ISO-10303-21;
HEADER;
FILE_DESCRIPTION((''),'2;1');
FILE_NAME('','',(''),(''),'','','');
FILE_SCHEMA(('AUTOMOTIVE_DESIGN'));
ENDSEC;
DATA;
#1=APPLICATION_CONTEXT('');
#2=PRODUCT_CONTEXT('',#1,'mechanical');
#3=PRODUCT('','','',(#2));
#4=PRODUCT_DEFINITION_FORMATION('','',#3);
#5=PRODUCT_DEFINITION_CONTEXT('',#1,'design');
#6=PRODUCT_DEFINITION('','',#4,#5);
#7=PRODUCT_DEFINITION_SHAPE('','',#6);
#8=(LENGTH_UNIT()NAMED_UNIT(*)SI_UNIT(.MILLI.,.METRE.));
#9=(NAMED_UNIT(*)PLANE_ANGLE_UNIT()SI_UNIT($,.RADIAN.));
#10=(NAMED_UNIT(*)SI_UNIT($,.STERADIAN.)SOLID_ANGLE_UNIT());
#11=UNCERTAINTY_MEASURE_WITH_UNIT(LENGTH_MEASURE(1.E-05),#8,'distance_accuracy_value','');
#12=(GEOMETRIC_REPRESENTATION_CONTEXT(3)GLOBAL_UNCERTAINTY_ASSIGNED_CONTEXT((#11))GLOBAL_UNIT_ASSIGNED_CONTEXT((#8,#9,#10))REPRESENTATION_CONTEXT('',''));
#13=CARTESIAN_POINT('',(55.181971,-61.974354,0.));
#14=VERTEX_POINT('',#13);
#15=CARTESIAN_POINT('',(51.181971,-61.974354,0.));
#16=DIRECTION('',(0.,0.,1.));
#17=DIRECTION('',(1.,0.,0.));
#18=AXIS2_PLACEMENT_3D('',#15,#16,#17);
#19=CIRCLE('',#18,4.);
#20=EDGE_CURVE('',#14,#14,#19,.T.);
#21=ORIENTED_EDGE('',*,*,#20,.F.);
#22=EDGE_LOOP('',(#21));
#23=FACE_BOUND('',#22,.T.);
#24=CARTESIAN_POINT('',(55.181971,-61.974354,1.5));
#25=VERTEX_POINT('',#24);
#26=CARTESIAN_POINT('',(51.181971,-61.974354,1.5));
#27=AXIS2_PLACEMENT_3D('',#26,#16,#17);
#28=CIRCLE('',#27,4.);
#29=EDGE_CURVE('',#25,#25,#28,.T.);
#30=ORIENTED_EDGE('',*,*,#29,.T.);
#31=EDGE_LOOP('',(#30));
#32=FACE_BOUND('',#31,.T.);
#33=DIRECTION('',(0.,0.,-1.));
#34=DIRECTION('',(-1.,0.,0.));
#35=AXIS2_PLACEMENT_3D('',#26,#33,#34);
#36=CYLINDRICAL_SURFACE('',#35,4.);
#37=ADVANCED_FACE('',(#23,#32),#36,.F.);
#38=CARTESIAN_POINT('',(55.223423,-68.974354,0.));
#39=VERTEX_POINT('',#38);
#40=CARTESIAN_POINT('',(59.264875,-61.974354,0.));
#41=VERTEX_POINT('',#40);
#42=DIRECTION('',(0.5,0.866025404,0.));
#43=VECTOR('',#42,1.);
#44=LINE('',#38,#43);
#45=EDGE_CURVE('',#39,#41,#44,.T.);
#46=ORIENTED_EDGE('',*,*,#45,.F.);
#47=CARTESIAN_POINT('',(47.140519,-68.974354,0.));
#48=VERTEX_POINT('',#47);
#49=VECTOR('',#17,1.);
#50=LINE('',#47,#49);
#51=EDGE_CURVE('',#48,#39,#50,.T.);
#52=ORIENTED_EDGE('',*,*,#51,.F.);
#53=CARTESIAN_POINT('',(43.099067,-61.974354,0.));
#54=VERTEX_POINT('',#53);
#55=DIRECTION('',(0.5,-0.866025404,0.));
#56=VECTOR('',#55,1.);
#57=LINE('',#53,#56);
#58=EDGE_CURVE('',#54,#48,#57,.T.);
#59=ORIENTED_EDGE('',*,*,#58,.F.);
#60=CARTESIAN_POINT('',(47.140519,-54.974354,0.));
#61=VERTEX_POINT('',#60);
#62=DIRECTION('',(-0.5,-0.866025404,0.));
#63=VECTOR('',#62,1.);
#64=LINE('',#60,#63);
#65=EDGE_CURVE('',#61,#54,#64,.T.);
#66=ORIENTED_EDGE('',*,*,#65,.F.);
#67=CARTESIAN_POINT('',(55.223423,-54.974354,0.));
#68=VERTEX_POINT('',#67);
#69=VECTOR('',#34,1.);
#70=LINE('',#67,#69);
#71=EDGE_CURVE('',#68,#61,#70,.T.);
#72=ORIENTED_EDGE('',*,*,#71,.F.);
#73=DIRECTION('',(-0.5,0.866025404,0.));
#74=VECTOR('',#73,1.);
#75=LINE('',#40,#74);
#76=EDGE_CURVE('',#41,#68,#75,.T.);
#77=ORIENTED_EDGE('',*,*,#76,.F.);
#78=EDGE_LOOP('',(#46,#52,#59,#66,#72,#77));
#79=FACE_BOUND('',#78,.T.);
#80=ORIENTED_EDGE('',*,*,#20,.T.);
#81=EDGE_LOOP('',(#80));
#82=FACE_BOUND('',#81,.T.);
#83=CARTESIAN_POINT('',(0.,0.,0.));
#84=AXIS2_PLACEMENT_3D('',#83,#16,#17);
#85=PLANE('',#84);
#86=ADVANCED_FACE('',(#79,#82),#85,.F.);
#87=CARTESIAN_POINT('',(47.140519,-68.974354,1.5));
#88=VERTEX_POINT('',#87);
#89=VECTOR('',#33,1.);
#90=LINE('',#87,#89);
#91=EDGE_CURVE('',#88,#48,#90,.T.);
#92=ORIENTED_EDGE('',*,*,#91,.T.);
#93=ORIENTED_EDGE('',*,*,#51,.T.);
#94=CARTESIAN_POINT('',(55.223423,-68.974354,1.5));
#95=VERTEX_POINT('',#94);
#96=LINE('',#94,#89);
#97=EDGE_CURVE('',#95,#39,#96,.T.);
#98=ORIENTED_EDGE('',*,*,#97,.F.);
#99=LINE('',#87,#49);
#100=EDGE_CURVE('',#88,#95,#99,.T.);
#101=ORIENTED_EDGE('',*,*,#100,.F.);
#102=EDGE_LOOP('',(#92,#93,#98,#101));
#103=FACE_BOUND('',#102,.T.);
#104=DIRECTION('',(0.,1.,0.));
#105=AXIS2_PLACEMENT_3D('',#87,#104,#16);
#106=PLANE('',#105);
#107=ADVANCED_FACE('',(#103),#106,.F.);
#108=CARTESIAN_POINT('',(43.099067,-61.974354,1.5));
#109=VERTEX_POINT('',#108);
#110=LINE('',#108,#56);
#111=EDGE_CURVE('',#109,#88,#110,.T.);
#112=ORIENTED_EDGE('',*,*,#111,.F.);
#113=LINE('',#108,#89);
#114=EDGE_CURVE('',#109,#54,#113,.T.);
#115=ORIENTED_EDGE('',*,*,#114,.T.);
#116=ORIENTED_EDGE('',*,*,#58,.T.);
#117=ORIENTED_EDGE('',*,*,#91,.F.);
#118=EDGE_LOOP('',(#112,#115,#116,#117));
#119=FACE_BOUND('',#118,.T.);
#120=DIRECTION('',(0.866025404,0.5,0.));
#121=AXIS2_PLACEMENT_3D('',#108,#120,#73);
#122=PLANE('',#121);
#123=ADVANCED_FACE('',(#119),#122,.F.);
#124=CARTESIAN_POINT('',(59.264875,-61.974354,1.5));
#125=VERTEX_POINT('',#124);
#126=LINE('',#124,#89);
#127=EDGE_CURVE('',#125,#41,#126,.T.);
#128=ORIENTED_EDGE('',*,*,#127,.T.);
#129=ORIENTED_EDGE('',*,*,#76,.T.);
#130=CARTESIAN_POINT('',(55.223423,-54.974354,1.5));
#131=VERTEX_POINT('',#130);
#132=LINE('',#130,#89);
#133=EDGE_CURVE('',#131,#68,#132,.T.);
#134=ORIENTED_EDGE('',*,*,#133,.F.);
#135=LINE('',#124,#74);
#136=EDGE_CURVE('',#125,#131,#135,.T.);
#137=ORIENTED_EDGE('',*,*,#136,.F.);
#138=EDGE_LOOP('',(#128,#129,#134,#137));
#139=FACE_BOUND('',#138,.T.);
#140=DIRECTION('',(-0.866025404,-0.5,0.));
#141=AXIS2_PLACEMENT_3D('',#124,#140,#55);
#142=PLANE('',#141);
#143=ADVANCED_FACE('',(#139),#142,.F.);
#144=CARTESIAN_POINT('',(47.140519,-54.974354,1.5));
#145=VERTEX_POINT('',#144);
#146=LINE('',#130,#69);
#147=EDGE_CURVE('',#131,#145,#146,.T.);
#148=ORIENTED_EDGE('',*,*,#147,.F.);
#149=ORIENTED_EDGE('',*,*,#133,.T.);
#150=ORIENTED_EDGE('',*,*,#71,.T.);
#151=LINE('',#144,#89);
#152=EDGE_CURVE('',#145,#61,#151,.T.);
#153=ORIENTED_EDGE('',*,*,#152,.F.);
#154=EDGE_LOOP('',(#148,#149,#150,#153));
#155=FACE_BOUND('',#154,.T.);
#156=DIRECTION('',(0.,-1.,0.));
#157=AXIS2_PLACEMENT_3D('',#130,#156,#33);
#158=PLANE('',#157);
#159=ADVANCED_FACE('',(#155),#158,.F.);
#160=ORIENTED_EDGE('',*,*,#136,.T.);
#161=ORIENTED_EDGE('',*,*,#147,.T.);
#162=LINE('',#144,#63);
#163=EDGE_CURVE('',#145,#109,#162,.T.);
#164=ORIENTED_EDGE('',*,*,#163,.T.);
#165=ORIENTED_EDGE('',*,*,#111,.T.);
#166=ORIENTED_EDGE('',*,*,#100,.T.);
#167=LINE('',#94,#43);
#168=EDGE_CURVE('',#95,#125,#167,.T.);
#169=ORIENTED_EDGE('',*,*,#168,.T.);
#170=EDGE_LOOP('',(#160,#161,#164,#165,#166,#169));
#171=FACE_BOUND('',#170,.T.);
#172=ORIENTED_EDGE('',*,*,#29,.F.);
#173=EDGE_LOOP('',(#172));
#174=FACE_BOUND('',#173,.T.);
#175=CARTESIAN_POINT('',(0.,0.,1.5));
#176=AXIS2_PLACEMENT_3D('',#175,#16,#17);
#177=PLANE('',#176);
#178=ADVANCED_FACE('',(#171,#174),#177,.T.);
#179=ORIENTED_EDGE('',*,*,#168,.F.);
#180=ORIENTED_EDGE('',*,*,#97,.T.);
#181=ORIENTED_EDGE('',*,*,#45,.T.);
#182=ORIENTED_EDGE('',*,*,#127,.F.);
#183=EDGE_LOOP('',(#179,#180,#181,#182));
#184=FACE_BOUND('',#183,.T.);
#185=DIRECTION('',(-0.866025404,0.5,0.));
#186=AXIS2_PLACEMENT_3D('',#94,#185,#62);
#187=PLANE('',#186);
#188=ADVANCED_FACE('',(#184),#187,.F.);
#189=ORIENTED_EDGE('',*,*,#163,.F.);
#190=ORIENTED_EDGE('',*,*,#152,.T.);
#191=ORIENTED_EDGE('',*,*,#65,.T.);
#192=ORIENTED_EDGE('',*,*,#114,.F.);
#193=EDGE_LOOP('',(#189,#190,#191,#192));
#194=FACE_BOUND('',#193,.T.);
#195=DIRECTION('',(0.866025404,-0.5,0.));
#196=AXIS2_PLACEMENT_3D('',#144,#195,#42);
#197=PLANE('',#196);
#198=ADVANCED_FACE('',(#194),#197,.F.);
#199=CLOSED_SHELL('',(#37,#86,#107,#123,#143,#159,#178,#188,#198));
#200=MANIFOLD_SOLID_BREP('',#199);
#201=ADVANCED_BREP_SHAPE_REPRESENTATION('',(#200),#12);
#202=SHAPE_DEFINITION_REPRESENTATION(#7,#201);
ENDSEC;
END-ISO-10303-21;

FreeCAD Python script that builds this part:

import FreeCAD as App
import Part
import Sketcher
from FreeCAD import Vector
Q = App.Units.Quantity

doc = App.newDocument("Part")
body = doc.addObject("PartDesign::Body", "Body")

sketch1 = body.newObject("Sketcher::SketchObject", "Sketch")
sketch1.AttachmentSupport = (doc.getObject("XY_Plane"), [""])
sketch1.MapMode = "FlatFace"
sketch1.addGeometry([
    Part.LineSegment(Vector(47.1, -69, 0), Vector(55.2, -69, 0)),
    Part.LineSegment(Vector(55.2, -69, 0), Vector(59.3, -62, 0)),
    Part.LineSegment(Vector(59.3, -62, 0), Vector(55.2, -55, 0)),
    Part.LineSegment(Vector(55.2, -55, 0), Vector(47.1, -55, 0)),
    Part.LineSegment(Vector(47.1, -55, 0), Vector(43.1, -62, 0)),
    Part.LineSegment(Vector(43.1, -62, 0), Vector(47.1, -69, 0)),
    Part.Circle(Vector(51.2, -62, 0), Vector(0, 0, 1), 4),
], False)
sketch1.addConstraint([
    Sketcher.Constraint("Coincident", 0, 2, 1, 1),
    Sketcher.Constraint("Coincident", 1, 2, 2, 1),
    Sketcher.Constraint("Coincident", 2, 2, 3, 1),
    Sketcher.Constraint("Coincident", 3, 2, 4, 1),
    Sketcher.Constraint("Coincident", 4, 2, 5, 1),
    Sketcher.Constraint("Coincident", 5, 2, 0, 1),
    Sketcher.Constraint("Horizontal", 0),
    Sketcher.Constraint("Horizontal", 3),
    Sketcher.Constraint("Parallel", 1, 4),
    Sketcher.Constraint("Parallel", 2, 5),
    Sketcher.Constraint("Horizontal", 6, 3, 1, 2),
    Sketcher.Constraint("Horizontal", 1, 2, 4, 2),
    Sketcher.Constraint("Vertical", 0, 2, 2, 2),
    Sketcher.Constraint("Vertical", 3, 2, 5, 2),
    Sketcher.Constraint("Diameter", 6, 8.0),
    Sketcher.Constraint("Angle", 1, Q("60 deg")),
    Sketcher.Constraint("DistanceY", 0, 2, 6, 3, 7.0),
    Sketcher.Constraint("DistanceX", 0, 1, 0, 2, 8.082904),
    Sketcher.Constraint("DistanceX", -1, 1, 6, 3, 51.181971),
    Sketcher.Constraint("DistanceX", -1, 1, 3, 2, 47.140519),
    Sketcher.Constraint("DistanceY", 6, 3, -1, 1, 61.974354),
])
pad1 = body.newObject("PartDesign::Pad", "Pad")
pad1.Profile = sketch1
pad1.Length = 1.5

doc.recompute()
